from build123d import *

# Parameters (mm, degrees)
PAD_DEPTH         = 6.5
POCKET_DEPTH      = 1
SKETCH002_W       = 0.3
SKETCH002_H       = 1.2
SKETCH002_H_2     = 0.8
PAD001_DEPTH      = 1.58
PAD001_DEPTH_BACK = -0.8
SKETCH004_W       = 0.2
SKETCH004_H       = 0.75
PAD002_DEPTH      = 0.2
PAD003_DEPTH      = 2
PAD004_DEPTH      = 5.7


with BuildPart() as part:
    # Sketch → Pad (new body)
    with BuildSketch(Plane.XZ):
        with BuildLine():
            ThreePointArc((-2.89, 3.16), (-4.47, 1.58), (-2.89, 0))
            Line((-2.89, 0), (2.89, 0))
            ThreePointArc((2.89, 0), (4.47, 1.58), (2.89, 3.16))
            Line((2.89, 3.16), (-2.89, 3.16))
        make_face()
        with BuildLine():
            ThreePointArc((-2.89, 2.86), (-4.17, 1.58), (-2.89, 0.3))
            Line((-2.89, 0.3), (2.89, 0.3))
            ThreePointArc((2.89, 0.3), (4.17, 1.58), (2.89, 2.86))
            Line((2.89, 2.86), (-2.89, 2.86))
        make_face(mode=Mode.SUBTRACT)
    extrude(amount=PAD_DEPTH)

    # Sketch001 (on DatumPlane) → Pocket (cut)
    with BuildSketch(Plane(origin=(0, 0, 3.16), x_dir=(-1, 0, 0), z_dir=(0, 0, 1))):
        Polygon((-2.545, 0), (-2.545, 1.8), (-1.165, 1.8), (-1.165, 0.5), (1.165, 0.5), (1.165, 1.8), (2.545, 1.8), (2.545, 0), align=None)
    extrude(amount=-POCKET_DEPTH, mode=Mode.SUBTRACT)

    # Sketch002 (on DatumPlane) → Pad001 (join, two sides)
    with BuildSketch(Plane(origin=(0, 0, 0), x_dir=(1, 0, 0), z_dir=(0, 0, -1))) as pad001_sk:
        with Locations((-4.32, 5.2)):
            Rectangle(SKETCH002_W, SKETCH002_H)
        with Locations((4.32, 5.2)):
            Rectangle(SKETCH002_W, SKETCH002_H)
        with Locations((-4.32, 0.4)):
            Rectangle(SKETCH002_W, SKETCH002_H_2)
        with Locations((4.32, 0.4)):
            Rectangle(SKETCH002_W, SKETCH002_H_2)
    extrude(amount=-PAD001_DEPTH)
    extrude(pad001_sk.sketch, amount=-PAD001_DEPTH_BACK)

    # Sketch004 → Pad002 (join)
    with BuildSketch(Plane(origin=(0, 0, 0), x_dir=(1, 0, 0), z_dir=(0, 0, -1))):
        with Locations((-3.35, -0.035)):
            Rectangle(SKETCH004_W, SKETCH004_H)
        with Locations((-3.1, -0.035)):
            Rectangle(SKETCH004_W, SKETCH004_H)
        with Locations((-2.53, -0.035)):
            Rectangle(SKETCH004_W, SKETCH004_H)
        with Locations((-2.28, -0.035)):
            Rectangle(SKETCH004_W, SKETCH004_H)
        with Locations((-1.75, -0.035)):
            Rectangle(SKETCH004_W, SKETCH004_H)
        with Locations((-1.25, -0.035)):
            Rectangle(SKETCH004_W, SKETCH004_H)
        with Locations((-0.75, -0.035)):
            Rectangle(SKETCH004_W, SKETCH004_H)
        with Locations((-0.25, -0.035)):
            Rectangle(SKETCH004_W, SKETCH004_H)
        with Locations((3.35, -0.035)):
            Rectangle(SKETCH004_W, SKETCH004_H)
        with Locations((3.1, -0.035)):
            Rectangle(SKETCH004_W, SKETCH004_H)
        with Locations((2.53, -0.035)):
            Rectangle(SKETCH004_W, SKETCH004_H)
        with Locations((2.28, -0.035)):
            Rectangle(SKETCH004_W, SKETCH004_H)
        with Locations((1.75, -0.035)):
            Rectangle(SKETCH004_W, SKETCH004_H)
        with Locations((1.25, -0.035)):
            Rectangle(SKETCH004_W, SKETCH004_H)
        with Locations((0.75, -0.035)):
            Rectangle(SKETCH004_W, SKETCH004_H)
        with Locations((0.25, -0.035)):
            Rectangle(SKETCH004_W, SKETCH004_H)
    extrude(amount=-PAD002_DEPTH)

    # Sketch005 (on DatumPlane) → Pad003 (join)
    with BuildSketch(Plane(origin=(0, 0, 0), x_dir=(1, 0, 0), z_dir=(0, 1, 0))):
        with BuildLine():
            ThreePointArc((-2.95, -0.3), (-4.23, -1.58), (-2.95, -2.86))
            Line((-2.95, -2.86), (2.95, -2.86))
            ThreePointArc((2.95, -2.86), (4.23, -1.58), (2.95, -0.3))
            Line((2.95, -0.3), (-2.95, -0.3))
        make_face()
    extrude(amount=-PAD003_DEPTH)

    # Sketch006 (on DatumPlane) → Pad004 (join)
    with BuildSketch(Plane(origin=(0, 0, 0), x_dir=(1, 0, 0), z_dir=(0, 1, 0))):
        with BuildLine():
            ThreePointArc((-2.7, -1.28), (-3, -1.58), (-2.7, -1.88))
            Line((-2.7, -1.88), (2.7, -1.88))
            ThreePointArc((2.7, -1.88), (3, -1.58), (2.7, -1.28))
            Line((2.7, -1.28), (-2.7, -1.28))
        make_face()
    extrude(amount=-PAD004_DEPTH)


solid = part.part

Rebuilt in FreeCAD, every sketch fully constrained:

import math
import FreeCAD as App
import Part
import Sketcher
Q = App.Units.Quantity


def add_polygon(sketch, points):
    """Adds a closed chain of lines whose ends are joined by coincident constraints."""
    first, n = sketch.GeometryCount, len(points)
    for a, b in zip(points, points[1:] + points[:1]):
        sketch.addGeometry(Part.LineSegment(App.Vector(*a, 0), App.Vector(*b, 0)), False)
    for i in range(n):
        sketch.addConstraint(Sketcher.Constraint("Coincident", first + i, 2, first + (i + 1) % n, 1))

doc = App.newDocument("Part")
params = doc.addObject("Spreadsheet::Sheet", "Params")
for row, (alias, value) in enumerate([
    ("sketch1_radius", "1.58 mm"),
    ("sketch1_radius2", "1.28 mm"),
    ("sketch1_width", "5.78 mm"),
    ("pad1_length", "6.5 mm"),
    ("sketch2_height", "1.8 mm"),
    ("sketch2_height2", "1.3 mm"),
    ("sketch2_width", "5.09 mm"),
    ("sketch2_width2", "1.38 mm"),
    ("pocket1_length", "1 mm"),
    ("sketch3_width", "0.3 mm"),
    ("sketch3_height", "1.2 mm"),
    ("sketch3_height2", "0.8 mm"),
    ("pad2_length", "1.58 mm"),
    ("pad2_length2", "0.8 mm"),
    ("sketch4_width", "0.2 mm"),
    ("sketch4_height", "0.75 mm"),
    ("pad3_length", "0.2 mm"),
    ("sketch5_radius", "1.28 mm"),
    ("sketch5_width", "5.9 mm"),
    ("pad4_length", "2 mm"),
    ("sketch6_radius", "0.3 mm"),
    ("sketch6_width", "5.4 mm"),
    ("pad5_length", "5.7 mm"),
], start=1):
    params.set(f"A{row}", alias)
    params.set(f"B{row}", "=" + value)
    params.setAlias(f"B{row}", alias)

body = doc.addObject("PartDesign::Body", "Body")

sketch1 = body.newObject("Sketcher::SketchObject", "Sketch")
sketch1.AttachmentSupport = (doc.getObject("XZ_Plane"), [""])
sketch1.MapMode = "FlatFace"
sketch1.addGeometry(Part.ArcOfCircle(Part.Circle(App.Vector(-2.89, 1.58, 0), App.Vector(0, 0, 1), 1.58), math.radians(90), math.radians(270)), False)
sketch1.addGeometry(Part.LineSegment(App.Vector(-2.89, 0, 0), App.Vector(2.89, 0, 0)), False)
sketch1.addGeometry(Part.ArcOfCircle(Part.Circle(App.Vector(2.89, 1.58, 0), App.Vector(0, 0, 1), 1.58), math.radians(-90), math.radians(90)), False)
sketch1.addGeometry(Part.LineSegment(App.Vector(2.89, 3.16, 0), App.Vector(-2.89, 3.16, 0)), False)
sketch1.addGeometry(Part.ArcOfCircle(Part.Circle(App.Vector(-2.89, 1.58, 0), App.Vector(0, 0, 1), 1.28), math.radians(90), math.radians(270)), False)
sketch1.addGeometry(Part.LineSegment(App.Vector(-2.89, 2.86, 0), App.Vector(2.89, 2.86, 0)), False)
sketch1.addGeometry(Part.ArcOfCircle(Part.Circle(App.Vector(2.89, 1.58, 0), App.Vector(0, 0, 1), 1.28), math.radians(-90), math.radians(90)), False)
sketch1.addGeometry(Part.LineSegment(App.Vector(2.89, 0.3, 0), App.Vector(-2.89, 0.3, 0)), False)
sketch1.addConstraint(Sketcher.Constraint("Tangent", 0, 2, 1, 1))
sketch1.addConstraint(Sketcher.Constraint("Tangent", 1, 2, 2, 1))
sketch1.addConstraint(Sketcher.Constraint("Tangent", 2, 2, 3, 1))
sketch1.addConstraint(Sketcher.Constraint("Tangent", 3, 2, 0, 1))
sketch1.addConstraint(Sketcher.Constraint("Tangent", 4, 1, 5, 1))
sketch1.addConstraint(Sketcher.Constraint("Tangent", 5, 2, 6, 2))
sketch1.addConstraint(Sketcher.Constraint("Tangent", 6, 1, 7, 1))
sketch1.addConstraint(Sketcher.Constraint("Tangent", 7, 2, 4, 2))
sketch1.addConstraint(Sketcher.Constraint("Horizontal", 1))
sketch1.addConstraint(Sketcher.Constraint("Horizontal", 3))
sketch1.addConstraint(Sketcher.Constraint("Horizontal", 5))
sketch1.addConstraint(Sketcher.Constraint("Horizontal", 7))
sketch1.addConstraint(Sketcher.Constraint("Coincident", 4, 3, 0, 3))
sketch1.addConstraint(Sketcher.Constraint("Symmetric", 0, 2, 1, 2, -1, 1))
sketch1.addConstraint(Sketcher.Constraint("Vertical", 6, 3, 1, 2))
sketch1.addConstraint(Sketcher.Constraint("Radius", 0, Q("1.58 mm")))
sketch1.addConstraint(Sketcher.Constraint("Radius", 4, Q("1.28 mm")))
sketch1.addConstraint(Sketcher.Constraint("DistanceX", 1, 1, 1, 2, Q("5.78 mm")))
sketch1.setExpression("Constraints[15]", "Params.sketch1_radius")
sketch1.setExpression("Constraints[16]", "Params.sketch1_radius2")
sketch1.setExpression("Constraints[17]", "Params.sketch1_width")
pad1 = body.newObject("PartDesign::Pad", "Pad")
pad1.Profile = sketch1
pad1.setExpression("Length", "Params.pad1_length")

sketch2 = body.newObject("Sketcher::SketchObject", "Sketch001")
sketch2.AttachmentSupport = (doc.getObject("XY_Plane"), [""])
sketch2.MapMode = "FlatFace"
sketch2.AttachmentOffset = App.Placement(App.Vector(0, 0, 3.16), App.Rotation())
add_polygon(sketch2, [(2.545, -1.8), (2.545, 0), (-2.545, 0), (-2.545, -1.8), (-1.165, -1.8), (-1.165, -0.5), (1.165, -0.5), (1.165, -1.8)])
sketch2.addConstraint(Sketcher.Constraint("Vertical", 0))
sketch2.addConstraint(Sketcher.Constraint("Horizontal", 1))
sketch2.addConstraint(Sketcher.Constraint("Vertical", 2))
sketch2.addConstraint(Sketcher.Constraint("Horizontal", 3))
sketch2.addConstraint(Sketcher.Constraint("Vertical", 4))
sketch2.addConstraint(Sketcher.Constraint("Horizontal", 5))
sketch2.addConstraint(Sketcher.Constraint("Vertical", 6))
sketch2.addConstraint(Sketcher.Constraint("Horizontal", 7))
sketch2.addConstraint(Sketcher.Constraint("Symmetric", 0, 2, 1, 2, -1, 1))
sketch2.addConstraint(Sketcher.Constraint("Symmetric", 3, 2, 6, 2, -2))
sketch2.addConstraint(Sketcher.Constraint("DistanceY", 0, 1, 0, 2, Q("1.8 mm")))
sketch2.addConstraint(Sketcher.Constraint("DistanceY", 4, 1, 4, 2, Q("1.3 mm")))
sketch2.addConstraint(Sketcher.Constraint("DistanceX", 1, 2, 1, 1, Q("5.09 mm")))
sketch2.addConstraint(Sketcher.Constraint("DistanceX", 3, 1, 3, 2, Q("1.38 mm")))
sketch2.setExpression("Constraints[18]", "Params.sketch2_height")
sketch2.setExpression("Constraints[19]", "Params.sketch2_height2")
sketch2.setExpression("Constraints[20]", "Params.sketch2_width")
sketch2.setExpression("Constraints[21]", "Params.sketch2_width2")
pocket1 = body.newObject("PartDesign::Pocket", "Pocket")
pocket1.Profile = sketch2
pocket1.setExpression("Length", "Params.pocket1_length")

sketch3 = body.newObject("Sketcher::SketchObject", "Sketch002")
sketch3.AttachmentSupport = (doc.getObject("XY_Plane"), [""])
sketch3.MapMode = "FlatFace"
add_polygon(sketch3, [(-4.47, -5.8), (-4.47, -4.6), (-4.17, -4.6), (-4.17, -5.8)])
add_polygon(sketch3, [(4.17, -5.8), (4.17, -4.6), (4.47, -4.6), (4.47, -5.8)])
add_polygon(sketch3, [(-4.47, -0.8), (-4.47, 0), (-4.17, 0), (-4.17, -0.8)])
add_polygon(sketch3, [(4.17, -0.8), (4.17, 0), (4.47, 0), (4.47, -0.8)])
sketch3.addConstraint(Sketcher.Constraint("Vertical", 0))
sketch3.addConstraint(Sketcher.Constraint("Horizontal", 1))
sketch3.addConstraint(Sketcher.Constraint("Vertical", 2))
sketch3.addConstraint(Sketcher.Constraint("Horizontal", 3))
sketch3.addConstraint(Sketcher.Constraint("Vertical", 4))
sketch3.addConstraint(Sketcher.Constraint("Horizontal", 5))
sketch3.addConstraint(Sketcher.Constraint("Vertical", 6))
sketch3.addConstraint(Sketcher.Constraint("Horizontal", 7))
sketch3.addConstraint(Sketcher.Constraint("Vertical", 8))
sketch3.addConstraint(Sketcher.Constraint("Horizontal", 9))
sketch3.addConstraint(Sketcher.Constraint("Vertical", 10))
sketch3.addConstraint(Sketcher.Constraint("Horizontal", 11))
sketch3.addConstraint(Sketcher.Constraint("Vertical", 12))
sketch3.addConstraint(Sketcher.Constraint("Horizontal", 13))
sketch3.addConstraint(Sketcher.Constraint("Vertical", 14))
sketch3.addConstraint(Sketcher.Constraint("Horizontal", 15))
sketch3.addConstraint(Sketcher.Constraint("Symmetric", 9, 2, 12, 2, -1, 1))
sketch3.addConstraint(Sketcher.Constraint("Symmetric", 1, 2, 4, 2, -2))
sketch3.addConstraint(Sketcher.Constraint("Symmetric", 3, 2, 6, 2, -2))
sketch3.addConstraint(Sketcher.Constraint("Symmetric", 8, 2, 13, 2, -2))
sketch3.addConstraint(Sketcher.Constraint("Horizontal", 11, 2, 14, 2))
sketch3.addConstraint(Sketcher.Constraint("Vertical", 3, 2, 8, 2))
sketch3.addConstraint(Sketcher.Constraint("Vertical", 2, 2, 9, 2))
sketch3.addConstraint(Sketcher.Constraint("DistanceX", 1, 1, 1, 2, Q("0.3 mm")))
sketch3.addConstraint(Sketcher.Constraint("DistanceY", 0, 1, 0, 2, Q("1.2 mm")))
sketch3.addConstraint(Sketcher.Constraint("DistanceY", 8, 1, 8, 2, Q("0.8 mm")))
sketch3.addConstraint(Sketcher.Constraint("DistanceY", 2, 2, 10, 2, Q("5 mm")))
sketch3.addConstraint(Sketcher.Constraint("DistanceX", 0, 2, -1, 1, Q("4.47 mm")))
sketch3.setExpression("Constraints[39]", "Params.sketch3_width")
sketch3.setExpression("Constraints[40]", "Params.sketch3_height")
sketch3.setExpression("Constraints[41]", "Params.sketch3_height2")
pad2 = body.newObject("PartDesign::Pad", "Pad001")
pad2.Profile = sketch3
pad2.Type = "TwoLengths"
pad2.setExpression("Length", "Params.pad2_length")
pad2.setExpression("Length2", "Params.pad2_length2")

sketch4 = body.newObject("Sketcher::SketchObject", "Sketch003")
sketch4.AttachmentSupport = (doc.getObject("XY_Plane"), [""])
sketch4.MapMode = "FlatFace"
add_polygon(sketch4, [(-3.45, -0.34), (-3.45, 0.41), (-3.25, 0.41), (-3.25, -0.34)])
add_polygon(sketch4, [(-3.2, -0.34), (-3.2, 0.41), (-3, 0.41), (-3, -0.34)])
add_polygon(sketch4, [(-2.63, -0.34), (-2.63, 0.41), (-2.43, 0.41), (-2.43, -0.34)])
add_polygon(sketch4, [(-2.38, -0.34), (-2.38, 0.41), (-2.18, 0.41), (-2.18, -0.34)])
add_polygon(sketch4, [(-1.85, -0.34), (-1.85, 0.41), (-1.65, 0.41), (-1.65, -0.34)])
add_polygon(sketch4, [(-1.35, -0.34), (-1.35, 0.41), (-1.15, 0.41), (-1.15, -0.34)])
add_polygon(sketch4, [(-0.85, -0.34), (-0.85, 0.41), (-0.65, 0.41), (-0.65, -0.34)])
add_polygon(sketch4, [(-0.35, -0.34), (-0.35, 0.41), (-0.15, 0.41), (-0.15, -0.34)])
add_polygon(sketch4, [(3.25, -0.34), (3.25, 0.41), (3.45, 0.41), (3.45, -0.34)])
add_polygon(sketch4, [(3, -0.34), (3, 0.41), (3.2, 0.41), (3.2, -0.34)])
add_polygon(sketch4, [(2.43, -0.34), (2.43, 0.41), (2.63, 0.41), (2.63, -0.34)])
add_polygon(sketch4, [(2.18, -0.34), (2.18, 0.41), (2.38, 0.41), (2.38, -0.34)])
add_polygon(sketch4, [(1.65, -0.34), (1.65, 0.41), (1.85, 0.41), (1.85, -0.34)])
add_polygon(sketch4, [(1.15, -0.34), (1.15, 0.41), (1.35, 0.41), (1.35, -0.34)])
add_polygon(sketch4, [(0.65, -0.34), (0.65, 0.41), (0.85, 0.41), (0.85, -0.34)])
add_polygon(sketch4, [(0.15, -0.34), (0.15, 0.41), (0.35, 0.41), (0.35, -0.34)])
sketch4.addConstraint(Sketcher.Constraint("Vertical", 0))
sketch4.addConstraint(Sketcher.Constraint("Horizontal", 1))
sketch4.addConstraint(Sketcher.Constraint("Vertical", 2))
sketch4.addConstraint(Sketcher.Constraint("Horizontal", 3))
sketch4.addConstraint(Sketcher.Constraint("Vertical", 4))
sketch4.addConstraint(Sketcher.Constraint("Horizontal", 5))
sketch4.addConstraint(Sketcher.Constraint("Vertical", 6))
sketch4.addConstraint(Sketcher.Constraint("Horizontal", 7))
sketch4.addConstraint(Sketcher.Constraint("Vertical", 8))
sketch4.addConstraint(Sketcher.Constraint("Horizontal", 9))
sketch4.addConstraint(Sketcher.Constraint("Vertical", 10))
sketch4.addConstraint(Sketcher.Constraint("Horizontal", 11))
sketch4.addConstraint(Sketcher.Constraint("Vertical", 12))
sketch4.addConstraint(Sketcher.Constraint("Horizontal", 13))
sketch4.addConstraint(Sketcher.Constraint("Vertical", 14))
sketch4.addConstraint(Sketcher.Constraint("Horizontal", 15))
sketch4.addConstraint(Sketcher.Constraint("Vertical", 16))
sketch4.addConstraint(Sketcher.Constraint("Horizontal", 17))
sketch4.addConstraint(Sketcher.Constraint("Vertical", 18))
sketch4.addConstraint(Sketcher.Constraint("Horizontal", 19))
sketch4.addConstraint(Sketcher.Constraint("Vertical", 20))
sketch4.addConstraint(Sketcher.Constraint("Horizontal", 21))
sketch4.addConstraint(Sketcher.Constraint("Vertical", 22))
sketch4.addConstraint(Sketcher.Constraint("Horizontal", 23))
sketch4.addConstraint(Sketcher.Constraint("Vertical", 24))
sketch4.addConstraint(Sketcher.Constraint("Horizontal", 25))
sketch4.addConstraint(Sketcher.Constraint("Vertical", 26))
sketch4.addConstraint(Sketcher.Constraint("Horizontal", 27))
sketch4.addConstraint(Sketcher.Constraint("Vertical", 28))
sketch4.addConstraint(Sketcher.Constraint("Horizontal", 29))
sketch4.addConstraint(Sketcher.Constraint("Vertical", 30))
sketch4.addConstraint(Sketcher.Constraint("Horizontal", 31))
sketch4.addConstraint(Sketcher.Constraint("Vertical", 32))
sketch4.addConstraint(Sketcher.Constraint("Horizontal", 33))
sketch4.addConstraint(Sketcher.Constraint("Vertical", 34))
sketch4.addConstraint(Sketcher.Constraint("Horizontal", 35))
sketch4.addConstraint(Sketcher.Constraint("Vertical", 36))
sketch4.addConstraint(Sketcher.Constraint("Horizontal", 37))
sketch4.addConstraint(Sketcher.Constraint("Vertical", 38))
sketch4.addConstraint(Sketcher.Constraint("Horizontal", 39))
sketch4.addConstraint(Sketcher.Constraint("Vertical", 40))
sketch4.addConstraint(Sketcher.Constraint("Horizontal", 41))
sketch4.addConstraint(Sketcher.Constraint("Vertical", 42))
sketch4.addConstraint(Sketcher.Constraint("Horizontal", 43))
sketch4.addConstraint(Sketcher.Constraint("Vertical", 44))
sketch4.addConstraint(Sketcher.Constraint("Horizontal", 45))
sketch4.addConstraint(Sketcher.Constraint("Vertical", 46))
sketch4.addConstraint(Sketcher.Constraint("Horizontal", 47))
sketch4.addConstraint(Sketcher.Constraint("Vertical", 48))
sketch4.addConstraint(Sketcher.Constraint("Horizontal", 49))
sketch4.addConstraint(Sketcher.Constraint("Vertical", 50))
sketch4.addConstraint(Sketcher.Constraint("Horizontal", 51))
sketch4.addConstraint(Sketcher.Constraint("Vertical", 52))
sketch4.addConstraint(Sketcher.Constraint("Horizontal", 53))
sketch4.addConstraint(Sketcher.Constraint("Vertical", 54))
sketch4.addConstraint(Sketcher.Constraint("Horizontal", 55))
sketch4.addConstraint(Sketcher.Constraint("Vertical", 56))
sketch4.addConstraint(Sketcher.Constraint("Horizontal", 57))
sketch4.addConstraint(Sketcher.Constraint("Vertical", 58))
sketch4.addConstraint(Sketcher.Constraint("Horizontal", 59))
sketch4.addConstraint(Sketcher.Constraint("Vertical", 60))
sketch4.addConstraint(Sketcher.Constraint("Horizontal", 61))
sketch4.addConstraint(Sketcher.Constraint("Vertical", 62))
sketch4.addConstraint(Sketcher.Constraint("Horizontal", 63))
sketch4.addConstraint(Sketcher.Constraint("Symmetric", 1, 2, 32, 2, -2))
sketch4.addConstraint(Sketcher.Constraint("Symmetric", 3, 2, 34, 2, -2))
sketch4.addConstraint(Sketcher.Constraint("Symmetric", 5, 2, 36, 2, -2))
sketch4.addConstraint(Sketcher.Constraint("Symmetric", 7, 2, 38, 2, -2))
sketch4.addConstraint(Sketcher.Constraint("Symmetric", 9, 2, 40, 2, -2))
sketch4.addConstraint(Sketcher.Constraint("Symmetric", 11, 2, 42, 2, -2))
sketch4.addConstraint(Sketcher.Constraint("Symmetric", 13, 2, 44, 2, -2))
sketch4.addConstraint(Sketcher.Constraint("Symmetric", 15, 2, 46, 2, -2))
sketch4.addConstraint(Sketcher.Constraint("Symmetric", 17, 2, 48, 2, -2))
sketch4.addConstraint(Sketcher.Constraint("Symmetric", 19, 2, 50, 2, -2))
sketch4.addConstraint(Sketcher.Constraint("Symmetric", 21, 2, 52, 2, -2))
sketch4.addConstraint(Sketcher.Constraint("Symmetric", 23, 2, 54, 2, -2))
sketch4.addConstraint(Sketcher.Constraint("Symmetric", 25, 2, 56, 2, -2))
sketch4.addConstraint(Sketcher.Constraint("Symmetric", 27, 2, 58, 2, -2))
sketch4.addConstraint(Sketcher.Constraint("Symmetric", 29, 2, 60, 2, -2))
sketch4.addConstraint(Sketcher.Constraint("Symmetric", 31, 2, 62, 2, -2))
sketch4.addConstraint(Sketcher.Constraint("Horizontal", 1, 2, 4, 2))
sketch4.addConstraint(Sketcher.Constraint("Horizontal", 3, 2, 6, 2))
sketch4.addConstraint(Sketcher.Constraint("Horizontal", 5, 2, 8, 2))
sketch4.addConstraint(Sketcher.Constraint("Horizontal", 7, 2, 10, 2))
sketch4.addConstraint(Sketcher.Constraint("Horizontal", 9, 2, 12, 2))
sketch4.addConstraint(Sketcher.Constraint("Horizontal", 11, 2, 14, 2))
sketch4.addConstraint(Sketcher.Constraint("Horizontal", 13, 2, 16, 2))
sketch4.addConstraint(Sketcher.Constraint("Horizontal", 15, 2, 18, 2))
sketch4.addConstraint(Sketcher.Constraint("Horizontal", 17, 2, 20, 2))
sketch4.addConstraint(Sketcher.Constraint("Horizontal", 19, 2, 22, 2))
sketch4.addConstraint(Sketcher.Constraint("Horizontal", 21, 2, 24, 2))
sketch4.addConstraint(Sketcher.Constraint("Horizontal", 23, 2, 26, 2))
sketch4.addConstraint(Sketcher.Constraint("Horizontal", 25, 2, 28, 2))
sketch4.addConstraint(Sketcher.Constraint("Horizontal", 27, 2, 30, 2))
sketch4.addConstraint(Sketcher.Constraint("Equal", 3, 5))
sketch4.addConstraint(Sketcher.Constraint("Equal", 7, 9))
sketch4.addConstraint(Sketcher.Constraint("Equal", 11, 13))
sketch4.addConstraint(Sketcher.Constraint("Equal", 15, 17))
sketch4.addConstraint(Sketcher.Constraint("Equal", 19, 21))
sketch4.addConstraint(Sketcher.Constraint("Equal", 23, 25))
sketch4.addConstraint(Sketcher.Constraint("Equal", 27, 29))
sketch4.addConstraint(Sketcher.Constraint("DistanceX", 1, 1, 1, 2, Q("0.2 mm")))
sketch4.addConstraint(Sketcher.Constraint("DistanceX", 5, 2, -1, 1, Q("3 mm")))
sketch4.addConstraint(Sketcher.Constraint("DistanceY", 0, 1, 0, 2, Q("0.75 mm")))
sketch4.addConstraint(Sketcher.Constraint("DistanceX", 0, 2, -1, 1, Q("3.45 mm")))
sketch4.addConstraint(Sketcher.Constraint("DistanceY", -1, 1, 0, 2, Q("0.41 mm")))
sketch4.addConstraint(Sketcher.Constraint("DistanceX", 8, 2, -1, 1, Q("2.63 mm")))
sketch4.addConstraint(Sketcher.Constraint("DistanceX", 12, 2, -1, 1, Q("2.38 mm")))
sketch4.addConstraint(Sketcher.Constraint("DistanceX", 16, 2, -1, 1, Q("1.85 mm")))
sketch4.addConstraint(Sketcher.Constraint("DistanceX", 20, 2, -1, 1, Q("1.35 mm")))
sketch4.addConstraint(Sketcher.Constraint("DistanceX", 24, 2, -1, 1, Q("0.85 mm")))
sketch4.addConstraint(Sketcher.Constraint("DistanceX", 28, 2, -1, 1, Q("0.35 mm")))
sketch4.setExpression("Constraints[165]", "Params.sketch4_width")
sketch4.setExpression("Constraints[167]", "Params.sketch4_height")
pad3 = body.newObject("PartDesign::Pad", "Pad002")
pad3.Profile = sketch4
pad3.setExpression("Length", "Params.pad3_length")

sketch5 = body.newObject("Sketcher::SketchObject", "Sketch004")
sketch5.AttachmentSupport = (doc.getObject("XZ_Plane"), [""])
sketch5.MapMode = "FlatFace"
sketch5.addGeometry(Part.ArcOfCircle(Part.Circle(App.Vector(-2.95, 1.58, 0), App.Vector(0, 0, 1), 1.28), math.radians(90), math.radians(270)), False)
sketch5.addGeometry(Part.LineSegment(App.Vector(-2.95, 2.86, 0), App.Vector(2.95, 2.86, 0)), False)
sketch5.addGeometry(Part.ArcOfCircle(Part.Circle(App.Vector(2.95, 1.58, 0), App.Vector(0, 0, 1), 1.28), math.radians(-90), math.radians(90)), False)
sketch5.addGeometry(Part.LineSegment(App.Vector(2.95, 0.3, 0), App.Vector(-2.95, 0.3, 0)), False)
sketch5.addConstraint(Sketcher.Constraint("Tangent", 0, 1, 1, 1))
sketch5.addConstraint(Sketcher.Constraint("Tangent", 1, 2, 2, 2))
sketch5.addConstraint(Sketcher.Constraint("Tangent", 2, 1, 3, 1))
sketch5.addConstraint(Sketcher.Constraint("Tangent", 3, 2, 0, 2))
sketch5.addConstraint(Sketcher.Constraint("Horizontal", 1))
sketch5.addConstraint(Sketcher.Constraint("Horizontal", 3))
sketch5.addConstraint(Sketcher.Constraint("Radius", 0, Q("1.28 mm")))
sketch5.addConstraint(Sketcher.Constraint("DistanceX", 1, 1, 1, 2, Q("5.9 mm")))
sketch5.addConstraint(Sketcher.Constraint("DistanceY", -1, 1, 2, 1, Q("0.3 mm")))
sketch5.addConstraint(Sketcher.Constraint("DistanceX", 0, 3, -1, 1, Q("2.95 mm")))
sketch5.setExpression("Constraints[6]", "Params.sketch5_radius")
sketch5.setExpression("Constraints[7]", "Params.sketch5_width")
pad4 = body.newObject("PartDesign::Pad", "Pad003")
pad4.Profile = sketch5
pad4.setExpression("Length", "Params.pad4_length")

sketch6 = body.newObject("Sketcher::SketchObject", "Sketch005")
sketch6.AttachmentSupport = (doc.getObject("XZ_Plane"), [""])
sketch6.MapMode = "FlatFace"
sketch6.addGeometry(Part.ArcOfCircle(Part.Circle(App.Vector(-2.7, 1.58, 0), App.Vector(0, 0, 1), 0.3), math.radians(90), math.radians(270)), False)
sketch6.addGeometry(Part.LineSegment(App.Vector(-2.7, 1.88, 0), App.Vector(2.7, 1.88, 0)), False)
sketch6.addGeometry(Part.ArcOfCircle(Part.Circle(App.Vector(2.7, 1.58, 0), App.Vector(0, 0, 1), 0.3), math.radians(-90), math.radians(90)), False)
sketch6.addGeometry(Part.LineSegment(App.Vector(2.7, 1.28, 0), App.Vector(-2.7, 1.28, 0)), False)
sketch6.addConstraint(Sketcher.Constraint("Tangent", 0, 1, 1, 1))
sketch6.addConstraint(Sketcher.Constraint("Tangent", 1, 2, 2, 2))
sketch6.addConstraint(Sketcher.Constraint("Tangent", 2, 1, 3, 1))
sketch6.addConstraint(Sketcher.Constraint("Tangent", 3, 2, 0, 2))
sketch6.addConstraint(Sketcher.Constraint("Horizontal", 1))
sketch6.addConstraint(Sketcher.Constraint("Horizontal", 3))
sketch6.addConstraint(Sketcher.Constraint("Radius", 0, Q("0.3 mm")))
sketch6.addConstraint(Sketcher.Constraint("DistanceX", 1, 1, 1, 2, Q("5.4 mm")))
sketch6.addConstraint(Sketcher.Constraint("DistanceX", 0, 3, -1, 1, Q("2.7 mm")))
sketch6.addConstraint(Sketcher.Constraint("DistanceY", -1, 1, 0, 3, Q("1.58 mm")))
sketch6.setExpression("Constraints[6]", "Params.sketch6_radius")
sketch6.setExpression("Constraints[7]", "Params.sketch6_width")
pad5 = body.newObject("PartDesign::Pad", "Pad004")
pad5.Profile = sketch6
pad5.setExpression("Length", "Params.pad5_length")

doc.recompute()
